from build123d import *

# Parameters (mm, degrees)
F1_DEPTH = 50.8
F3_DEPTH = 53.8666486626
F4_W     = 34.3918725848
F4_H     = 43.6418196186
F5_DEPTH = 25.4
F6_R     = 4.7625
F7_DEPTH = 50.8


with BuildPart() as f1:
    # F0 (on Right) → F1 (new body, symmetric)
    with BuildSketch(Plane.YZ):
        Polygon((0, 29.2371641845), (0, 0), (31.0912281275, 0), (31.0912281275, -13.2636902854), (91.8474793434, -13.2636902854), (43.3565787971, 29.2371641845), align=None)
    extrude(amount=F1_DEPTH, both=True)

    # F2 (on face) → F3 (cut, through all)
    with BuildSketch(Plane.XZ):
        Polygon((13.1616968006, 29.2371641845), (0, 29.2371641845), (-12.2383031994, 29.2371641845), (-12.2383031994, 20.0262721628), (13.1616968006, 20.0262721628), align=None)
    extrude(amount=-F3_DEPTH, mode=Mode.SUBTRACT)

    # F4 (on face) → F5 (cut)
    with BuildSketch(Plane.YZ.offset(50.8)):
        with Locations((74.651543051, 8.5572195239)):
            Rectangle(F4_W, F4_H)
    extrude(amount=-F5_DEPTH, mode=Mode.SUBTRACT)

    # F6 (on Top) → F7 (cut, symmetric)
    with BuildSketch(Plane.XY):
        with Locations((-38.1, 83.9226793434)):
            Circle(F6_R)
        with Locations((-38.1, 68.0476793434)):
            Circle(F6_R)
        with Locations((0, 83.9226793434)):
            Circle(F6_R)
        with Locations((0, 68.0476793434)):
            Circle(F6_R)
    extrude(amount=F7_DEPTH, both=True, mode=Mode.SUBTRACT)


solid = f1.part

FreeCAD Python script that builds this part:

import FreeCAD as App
import Part
import Sketcher

V = App.Vector
Q = App.Units.Quantity


def add_polygon(sketch, points):
    """Adds a closed chain of lines whose ends are joined by coincident constraints."""
    first, n = sketch.GeometryCount, len(points)
    for a, b in zip(points, points[1:] + points[:1]):
        sketch.addGeometry(Part.LineSegment(App.Vector(*a, 0), App.Vector(*b, 0)), False)
    for i in range(n):
        sketch.addConstraint(Sketcher.Constraint("Coincident", first + i, 2, first + (i + 1) % n, 1))

doc = App.newDocument("Part")
body = doc.addObject("PartDesign::Body", "Body")

sketch1 = body.newObject("Sketcher::SketchObject", "Sketch")
sketch1.AttachmentSupport = (doc.getObject("YZ_Plane"), [""])
sketch1.MapMode = "FlatFace"
add_polygon(sketch1, [(0, 29), (0, 0), (31, 0), (31, -13), (92, -13), (43, 29)])
sketch1.addConstraint([
    Sketcher.Constraint("Vertical", 0),
    Sketcher.Constraint("Horizontal", 1),
    Sketcher.Constraint("Vertical", 2),
    Sketcher.Constraint("Horizontal", 3),
    Sketcher.Constraint("Horizontal", 5),
    Sketcher.Constraint("Coincident", 0, 2, -1, 1),
    Sketcher.Constraint("DistanceX", 1, 1, 1, 2, Q("31.091228 mm")),
    Sketcher.Constraint("DistanceX", 3, 1, 3, 2, Q("60.756251 mm")),
    Sketcher.Constraint("DistanceX", 5, 2, 5, 1, Q("43.356579 mm")),
    Sketcher.Constraint("DistanceY", 2, 2, 2, 1, Q("13.26369 mm")),
    Sketcher.Constraint("DistanceY", 0, 2, 0, 1, Q("29.237164 mm")),
])
pad1 = body.newObject("PartDesign::Pad", "Pad")
pad1.Profile = sketch1
pad1.Length = Q("4 in")
pad1.Midplane = True

sketch2 = body.newObject("Sketcher::SketchObject", "Sketch001")
sketch2.AttachmentSupport = (doc.getObject("XZ_Plane"), [""])
sketch2.MapMode = "FlatFace"
add_polygon(sketch2, [(13, 29), (-12, 29), (-12, 20), (13, 20)])
sketch2.addConstraint([
    Sketcher.Constraint("Horizontal", 0),
    Sketcher.Constraint("Vertical", 1),
    Sketcher.Constraint("Horizontal", 2),
    Sketcher.Constraint("Vertical", 3),
    Sketcher.Constraint("DistanceX", 0, 2, 0, 1, Q("1 in")),
    Sketcher.Constraint("DistanceY", 1, 2, 1, 1, Q("9.210892 mm")),
    Sketcher.Constraint("DistanceX", 0, 2, -1, 1, Q("12.238303 mm")),
    Sketcher.Constraint("DistanceY", -1, 1, 0, 2, Q("29.237164 mm")),
])
pocket1 = body.newObject("PartDesign::Pocket", "Pocket")
pocket1.Profile = sketch2
pocket1.Type = "ThroughAll"

sketch3 = body.newObject("Sketcher::SketchObject", "Sketch002")
sketch3.AttachmentSupport = (doc.getObject("YZ_Plane"), [""])
sketch3.MapMode = "FlatFace"
sketch3.AttachmentOffset = App.Placement(V(0, 0, 2 * 25.4), App.Rotation())
add_polygon(sketch3, [(57, 30), (57, -13), (92, -13), (92, 30)])
sketch3.addConstraint([
    Sketcher.Constraint("Vertical", 0),
    Sketcher.Constraint("Horizontal", 1),
    Sketcher.Constraint("Vertical", 2),
    Sketcher.Constraint("Horizontal", 3),
    Sketcher.Constraint("DistanceY", 0, 2, 0, 1, Q("43.64182 mm")),
    Sketcher.Constraint("DistanceX", 1, 1, 1, 2, Q("34.391873 mm")),
    Sketcher.Constraint("DistanceY", 0, 2, -1, 1, Q("13.26369 mm")),
    Sketcher.Constraint("DistanceX", -1, 1, 1, 2, Q("91.847479 mm")),
])
pocket2 = body.newObject("PartDesign::Pocket", "Pocket001")
pocket2.Profile = sketch3
pocket2.Length = Q("1 in")

sketch4 = body.newObject("Sketcher::SketchObject", "Sketch003")
sketch4.AttachmentSupport = (doc.getObject("XY_Plane"), [""])
sketch4.MapMode = "FlatFace"
sketch4.addGeometry([
    Part.Circle(V(-38.1, 83.9, 0), V(0, 0, 1), 4.8),
    Part.Circle(V(-38.1, 68, 0), V(0, 0, 1), 4.8),
    Part.Circle(V(0, 83.9, 0), V(0, 0, 1), 4.8),
    Part.Circle(V(0, 68, 0), V(0, 0, 1), 4.8),
], False)
sketch4.addConstraint([
    Sketcher.Constraint("Equal", 0, 1),
    Sketcher.Constraint("Equal", 1, 2),
    Sketcher.Constraint("Equal", 2, 3),
    Sketcher.Constraint("PointOnObject", 2, 3, -2),
    Sketcher.Constraint("PointOnObject", 3, 3, -2),
    Sketcher.Constraint("Horizontal", 0, 3, 2, 3),
    Sketcher.Constraint("Horizontal", 1, 3, 3, 3),
    Sketcher.Constraint("Vertical", 0, 3, 1, 3),
    Sketcher.Constraint("Diameter", 0, Q("0.375 in")),
    Sketcher.Constraint("DistanceX", 0, 3, -1, 1, Q("1.5 in")),
    Sketcher.Constraint("DistanceY", 1, 3, 0, 3, Q("0.625 in")),
    Sketcher.Constraint("DistanceY", -1, 1, 0, 3, Q("83.922679 mm")),
])
pocket3 = body.newObject("PartDesign::Pocket", "Pocket002")
pocket3.Profile = sketch4
pocket3.Length = Q("4 in")
pocket3.Midplane = True

doc.recompute()
